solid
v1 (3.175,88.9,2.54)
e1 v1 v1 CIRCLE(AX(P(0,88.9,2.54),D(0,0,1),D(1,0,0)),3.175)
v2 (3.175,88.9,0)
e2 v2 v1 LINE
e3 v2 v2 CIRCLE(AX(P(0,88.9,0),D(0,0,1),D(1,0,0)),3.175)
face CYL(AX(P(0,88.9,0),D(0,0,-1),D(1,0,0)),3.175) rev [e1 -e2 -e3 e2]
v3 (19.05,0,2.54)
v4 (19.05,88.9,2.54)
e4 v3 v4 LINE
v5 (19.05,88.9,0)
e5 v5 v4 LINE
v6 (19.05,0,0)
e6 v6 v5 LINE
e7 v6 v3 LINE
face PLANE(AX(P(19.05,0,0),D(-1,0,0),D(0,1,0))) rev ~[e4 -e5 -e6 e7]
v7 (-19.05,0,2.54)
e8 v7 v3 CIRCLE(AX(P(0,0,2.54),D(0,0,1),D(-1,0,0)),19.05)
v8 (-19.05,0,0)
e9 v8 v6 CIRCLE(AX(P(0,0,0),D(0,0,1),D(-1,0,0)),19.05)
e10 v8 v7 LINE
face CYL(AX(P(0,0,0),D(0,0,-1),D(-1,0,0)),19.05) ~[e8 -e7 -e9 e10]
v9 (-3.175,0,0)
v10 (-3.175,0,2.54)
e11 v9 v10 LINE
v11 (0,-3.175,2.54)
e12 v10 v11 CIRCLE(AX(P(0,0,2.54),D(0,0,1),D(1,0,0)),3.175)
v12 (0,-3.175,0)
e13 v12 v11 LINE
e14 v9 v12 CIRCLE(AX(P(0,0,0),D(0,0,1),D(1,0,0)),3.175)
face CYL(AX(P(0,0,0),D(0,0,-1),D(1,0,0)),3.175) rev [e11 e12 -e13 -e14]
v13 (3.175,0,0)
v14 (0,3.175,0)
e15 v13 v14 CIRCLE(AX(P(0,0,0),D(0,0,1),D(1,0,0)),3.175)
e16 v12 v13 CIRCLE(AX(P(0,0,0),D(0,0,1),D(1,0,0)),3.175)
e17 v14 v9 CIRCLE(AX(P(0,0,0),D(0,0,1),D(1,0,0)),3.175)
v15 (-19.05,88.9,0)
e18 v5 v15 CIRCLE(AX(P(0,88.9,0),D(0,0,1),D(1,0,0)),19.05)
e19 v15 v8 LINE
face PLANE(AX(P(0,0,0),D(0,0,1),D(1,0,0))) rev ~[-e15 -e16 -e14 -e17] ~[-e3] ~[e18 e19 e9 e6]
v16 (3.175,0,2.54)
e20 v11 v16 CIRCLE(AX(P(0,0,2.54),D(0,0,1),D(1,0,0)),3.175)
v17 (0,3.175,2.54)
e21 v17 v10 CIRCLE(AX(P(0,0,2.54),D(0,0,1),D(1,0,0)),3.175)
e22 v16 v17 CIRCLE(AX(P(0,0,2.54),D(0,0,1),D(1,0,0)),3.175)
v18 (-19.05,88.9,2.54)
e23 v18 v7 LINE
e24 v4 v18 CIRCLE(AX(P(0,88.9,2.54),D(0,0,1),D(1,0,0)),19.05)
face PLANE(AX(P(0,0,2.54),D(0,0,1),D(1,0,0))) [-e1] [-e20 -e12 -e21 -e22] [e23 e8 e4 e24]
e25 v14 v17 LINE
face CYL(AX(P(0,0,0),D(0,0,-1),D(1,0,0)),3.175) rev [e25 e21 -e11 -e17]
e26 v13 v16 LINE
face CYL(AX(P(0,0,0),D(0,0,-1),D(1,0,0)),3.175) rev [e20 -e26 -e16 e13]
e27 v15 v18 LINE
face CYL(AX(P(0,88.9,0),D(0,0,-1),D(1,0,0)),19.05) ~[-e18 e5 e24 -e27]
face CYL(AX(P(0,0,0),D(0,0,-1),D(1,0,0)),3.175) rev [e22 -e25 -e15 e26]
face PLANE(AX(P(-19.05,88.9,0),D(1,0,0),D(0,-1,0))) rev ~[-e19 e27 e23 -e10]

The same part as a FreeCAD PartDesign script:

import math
import FreeCAD as App
import Part
import Sketcher
from FreeCAD import Vector
Q = App.Units.Quantity

doc = App.newDocument("Part")
params = doc.addObject("Spreadsheet::Sheet", "Params")
for row, (alias, value) in enumerate([
    ("sketch1_diameter", "0.25 in"),
    ("sketch1_radius", "0.75 in"),
    ("sketch1_height", "3.5 in"),
    ("pad1_length", "0.1 in"),
], start=1):
    params.set(f"A{row}", alias)
    params.set(f"B{row}", "=" + value)
    params.setAlias(f"B{row}", alias)

body = doc.addObject("PartDesign::Body", "Body")

sketch1 = body.newObject("Sketcher::SketchObject", "Sketch")
sketch1.AttachmentSupport = (doc.getObject("XY_Plane"), [""])
sketch1.MapMode = "FlatFace"
sketch1.addGeometry([
    Part.ArcOfCircle(Part.Circle(Vector(0, 0, 0), Vector(0, 0, 1), 19.05), math.radians(180), math.radians(360)),
    Part.LineSegment(Vector(19.05, 0, 0), Vector(19.05, 88.9, 0)),
    Part.ArcOfCircle(Part.Circle(Vector(0, 88.9, 0), Vector(0, 0, 1), 19.05), math.radians(0), math.radians(180)),
    Part.LineSegment(Vector(-19.05, 88.9, 0), Vector(-19.05, 0, 0)),
    Part.Circle(Vector(0, 0, 0), Vector(0, 0, 1), 3.175),
    Part.Circle(Vector(0, 88.9, 0), Vector(0, 0, 1), 3.175),
], False)
sketch1.addConstraint([
    Sketcher.Constraint("Tangent", 0, 2, 1, 1),
    Sketcher.Constraint("Tangent", 1, 2, 2, 1),
    Sketcher.Constraint("Tangent", 2, 2, 3, 1),
    Sketcher.Constraint("Tangent", 3, 2, 0, 1),
    Sketcher.Constraint("Vertical", 1),
    Sketcher.Constraint("Vertical", 3),
    Sketcher.Constraint("Coincident", 0, 3, -1, 1),
    Sketcher.Constraint("Coincident", 4, 3, -1, 1),
    Sketcher.Constraint("Coincident", 5, 3, 2, 3),
    Sketcher.Constraint("Equal", 4, 5),
    Sketcher.Constraint("Diameter", 4, Q("0.25 in")),
    Sketcher.Constraint("Radius", 0, Q("0.75 in")),
    Sketcher.Constraint("DistanceY", 1, 1, 1, 2, Q("3.5 in")),
])
sketch1.setExpression("Constraints[10]", "Params.sketch1_diameter")
sketch1.setExpression("Constraints[11]", "Params.sketch1_radius")
sketch1.setExpression("Constraints[12]", "Params.sketch1_height")
pad1 = body.newObject("PartDesign::Pad", "Pad")
pad1.Profile = sketch1
pad1.setExpression("Length", "Params.pad1_length")

doc.recompute()
